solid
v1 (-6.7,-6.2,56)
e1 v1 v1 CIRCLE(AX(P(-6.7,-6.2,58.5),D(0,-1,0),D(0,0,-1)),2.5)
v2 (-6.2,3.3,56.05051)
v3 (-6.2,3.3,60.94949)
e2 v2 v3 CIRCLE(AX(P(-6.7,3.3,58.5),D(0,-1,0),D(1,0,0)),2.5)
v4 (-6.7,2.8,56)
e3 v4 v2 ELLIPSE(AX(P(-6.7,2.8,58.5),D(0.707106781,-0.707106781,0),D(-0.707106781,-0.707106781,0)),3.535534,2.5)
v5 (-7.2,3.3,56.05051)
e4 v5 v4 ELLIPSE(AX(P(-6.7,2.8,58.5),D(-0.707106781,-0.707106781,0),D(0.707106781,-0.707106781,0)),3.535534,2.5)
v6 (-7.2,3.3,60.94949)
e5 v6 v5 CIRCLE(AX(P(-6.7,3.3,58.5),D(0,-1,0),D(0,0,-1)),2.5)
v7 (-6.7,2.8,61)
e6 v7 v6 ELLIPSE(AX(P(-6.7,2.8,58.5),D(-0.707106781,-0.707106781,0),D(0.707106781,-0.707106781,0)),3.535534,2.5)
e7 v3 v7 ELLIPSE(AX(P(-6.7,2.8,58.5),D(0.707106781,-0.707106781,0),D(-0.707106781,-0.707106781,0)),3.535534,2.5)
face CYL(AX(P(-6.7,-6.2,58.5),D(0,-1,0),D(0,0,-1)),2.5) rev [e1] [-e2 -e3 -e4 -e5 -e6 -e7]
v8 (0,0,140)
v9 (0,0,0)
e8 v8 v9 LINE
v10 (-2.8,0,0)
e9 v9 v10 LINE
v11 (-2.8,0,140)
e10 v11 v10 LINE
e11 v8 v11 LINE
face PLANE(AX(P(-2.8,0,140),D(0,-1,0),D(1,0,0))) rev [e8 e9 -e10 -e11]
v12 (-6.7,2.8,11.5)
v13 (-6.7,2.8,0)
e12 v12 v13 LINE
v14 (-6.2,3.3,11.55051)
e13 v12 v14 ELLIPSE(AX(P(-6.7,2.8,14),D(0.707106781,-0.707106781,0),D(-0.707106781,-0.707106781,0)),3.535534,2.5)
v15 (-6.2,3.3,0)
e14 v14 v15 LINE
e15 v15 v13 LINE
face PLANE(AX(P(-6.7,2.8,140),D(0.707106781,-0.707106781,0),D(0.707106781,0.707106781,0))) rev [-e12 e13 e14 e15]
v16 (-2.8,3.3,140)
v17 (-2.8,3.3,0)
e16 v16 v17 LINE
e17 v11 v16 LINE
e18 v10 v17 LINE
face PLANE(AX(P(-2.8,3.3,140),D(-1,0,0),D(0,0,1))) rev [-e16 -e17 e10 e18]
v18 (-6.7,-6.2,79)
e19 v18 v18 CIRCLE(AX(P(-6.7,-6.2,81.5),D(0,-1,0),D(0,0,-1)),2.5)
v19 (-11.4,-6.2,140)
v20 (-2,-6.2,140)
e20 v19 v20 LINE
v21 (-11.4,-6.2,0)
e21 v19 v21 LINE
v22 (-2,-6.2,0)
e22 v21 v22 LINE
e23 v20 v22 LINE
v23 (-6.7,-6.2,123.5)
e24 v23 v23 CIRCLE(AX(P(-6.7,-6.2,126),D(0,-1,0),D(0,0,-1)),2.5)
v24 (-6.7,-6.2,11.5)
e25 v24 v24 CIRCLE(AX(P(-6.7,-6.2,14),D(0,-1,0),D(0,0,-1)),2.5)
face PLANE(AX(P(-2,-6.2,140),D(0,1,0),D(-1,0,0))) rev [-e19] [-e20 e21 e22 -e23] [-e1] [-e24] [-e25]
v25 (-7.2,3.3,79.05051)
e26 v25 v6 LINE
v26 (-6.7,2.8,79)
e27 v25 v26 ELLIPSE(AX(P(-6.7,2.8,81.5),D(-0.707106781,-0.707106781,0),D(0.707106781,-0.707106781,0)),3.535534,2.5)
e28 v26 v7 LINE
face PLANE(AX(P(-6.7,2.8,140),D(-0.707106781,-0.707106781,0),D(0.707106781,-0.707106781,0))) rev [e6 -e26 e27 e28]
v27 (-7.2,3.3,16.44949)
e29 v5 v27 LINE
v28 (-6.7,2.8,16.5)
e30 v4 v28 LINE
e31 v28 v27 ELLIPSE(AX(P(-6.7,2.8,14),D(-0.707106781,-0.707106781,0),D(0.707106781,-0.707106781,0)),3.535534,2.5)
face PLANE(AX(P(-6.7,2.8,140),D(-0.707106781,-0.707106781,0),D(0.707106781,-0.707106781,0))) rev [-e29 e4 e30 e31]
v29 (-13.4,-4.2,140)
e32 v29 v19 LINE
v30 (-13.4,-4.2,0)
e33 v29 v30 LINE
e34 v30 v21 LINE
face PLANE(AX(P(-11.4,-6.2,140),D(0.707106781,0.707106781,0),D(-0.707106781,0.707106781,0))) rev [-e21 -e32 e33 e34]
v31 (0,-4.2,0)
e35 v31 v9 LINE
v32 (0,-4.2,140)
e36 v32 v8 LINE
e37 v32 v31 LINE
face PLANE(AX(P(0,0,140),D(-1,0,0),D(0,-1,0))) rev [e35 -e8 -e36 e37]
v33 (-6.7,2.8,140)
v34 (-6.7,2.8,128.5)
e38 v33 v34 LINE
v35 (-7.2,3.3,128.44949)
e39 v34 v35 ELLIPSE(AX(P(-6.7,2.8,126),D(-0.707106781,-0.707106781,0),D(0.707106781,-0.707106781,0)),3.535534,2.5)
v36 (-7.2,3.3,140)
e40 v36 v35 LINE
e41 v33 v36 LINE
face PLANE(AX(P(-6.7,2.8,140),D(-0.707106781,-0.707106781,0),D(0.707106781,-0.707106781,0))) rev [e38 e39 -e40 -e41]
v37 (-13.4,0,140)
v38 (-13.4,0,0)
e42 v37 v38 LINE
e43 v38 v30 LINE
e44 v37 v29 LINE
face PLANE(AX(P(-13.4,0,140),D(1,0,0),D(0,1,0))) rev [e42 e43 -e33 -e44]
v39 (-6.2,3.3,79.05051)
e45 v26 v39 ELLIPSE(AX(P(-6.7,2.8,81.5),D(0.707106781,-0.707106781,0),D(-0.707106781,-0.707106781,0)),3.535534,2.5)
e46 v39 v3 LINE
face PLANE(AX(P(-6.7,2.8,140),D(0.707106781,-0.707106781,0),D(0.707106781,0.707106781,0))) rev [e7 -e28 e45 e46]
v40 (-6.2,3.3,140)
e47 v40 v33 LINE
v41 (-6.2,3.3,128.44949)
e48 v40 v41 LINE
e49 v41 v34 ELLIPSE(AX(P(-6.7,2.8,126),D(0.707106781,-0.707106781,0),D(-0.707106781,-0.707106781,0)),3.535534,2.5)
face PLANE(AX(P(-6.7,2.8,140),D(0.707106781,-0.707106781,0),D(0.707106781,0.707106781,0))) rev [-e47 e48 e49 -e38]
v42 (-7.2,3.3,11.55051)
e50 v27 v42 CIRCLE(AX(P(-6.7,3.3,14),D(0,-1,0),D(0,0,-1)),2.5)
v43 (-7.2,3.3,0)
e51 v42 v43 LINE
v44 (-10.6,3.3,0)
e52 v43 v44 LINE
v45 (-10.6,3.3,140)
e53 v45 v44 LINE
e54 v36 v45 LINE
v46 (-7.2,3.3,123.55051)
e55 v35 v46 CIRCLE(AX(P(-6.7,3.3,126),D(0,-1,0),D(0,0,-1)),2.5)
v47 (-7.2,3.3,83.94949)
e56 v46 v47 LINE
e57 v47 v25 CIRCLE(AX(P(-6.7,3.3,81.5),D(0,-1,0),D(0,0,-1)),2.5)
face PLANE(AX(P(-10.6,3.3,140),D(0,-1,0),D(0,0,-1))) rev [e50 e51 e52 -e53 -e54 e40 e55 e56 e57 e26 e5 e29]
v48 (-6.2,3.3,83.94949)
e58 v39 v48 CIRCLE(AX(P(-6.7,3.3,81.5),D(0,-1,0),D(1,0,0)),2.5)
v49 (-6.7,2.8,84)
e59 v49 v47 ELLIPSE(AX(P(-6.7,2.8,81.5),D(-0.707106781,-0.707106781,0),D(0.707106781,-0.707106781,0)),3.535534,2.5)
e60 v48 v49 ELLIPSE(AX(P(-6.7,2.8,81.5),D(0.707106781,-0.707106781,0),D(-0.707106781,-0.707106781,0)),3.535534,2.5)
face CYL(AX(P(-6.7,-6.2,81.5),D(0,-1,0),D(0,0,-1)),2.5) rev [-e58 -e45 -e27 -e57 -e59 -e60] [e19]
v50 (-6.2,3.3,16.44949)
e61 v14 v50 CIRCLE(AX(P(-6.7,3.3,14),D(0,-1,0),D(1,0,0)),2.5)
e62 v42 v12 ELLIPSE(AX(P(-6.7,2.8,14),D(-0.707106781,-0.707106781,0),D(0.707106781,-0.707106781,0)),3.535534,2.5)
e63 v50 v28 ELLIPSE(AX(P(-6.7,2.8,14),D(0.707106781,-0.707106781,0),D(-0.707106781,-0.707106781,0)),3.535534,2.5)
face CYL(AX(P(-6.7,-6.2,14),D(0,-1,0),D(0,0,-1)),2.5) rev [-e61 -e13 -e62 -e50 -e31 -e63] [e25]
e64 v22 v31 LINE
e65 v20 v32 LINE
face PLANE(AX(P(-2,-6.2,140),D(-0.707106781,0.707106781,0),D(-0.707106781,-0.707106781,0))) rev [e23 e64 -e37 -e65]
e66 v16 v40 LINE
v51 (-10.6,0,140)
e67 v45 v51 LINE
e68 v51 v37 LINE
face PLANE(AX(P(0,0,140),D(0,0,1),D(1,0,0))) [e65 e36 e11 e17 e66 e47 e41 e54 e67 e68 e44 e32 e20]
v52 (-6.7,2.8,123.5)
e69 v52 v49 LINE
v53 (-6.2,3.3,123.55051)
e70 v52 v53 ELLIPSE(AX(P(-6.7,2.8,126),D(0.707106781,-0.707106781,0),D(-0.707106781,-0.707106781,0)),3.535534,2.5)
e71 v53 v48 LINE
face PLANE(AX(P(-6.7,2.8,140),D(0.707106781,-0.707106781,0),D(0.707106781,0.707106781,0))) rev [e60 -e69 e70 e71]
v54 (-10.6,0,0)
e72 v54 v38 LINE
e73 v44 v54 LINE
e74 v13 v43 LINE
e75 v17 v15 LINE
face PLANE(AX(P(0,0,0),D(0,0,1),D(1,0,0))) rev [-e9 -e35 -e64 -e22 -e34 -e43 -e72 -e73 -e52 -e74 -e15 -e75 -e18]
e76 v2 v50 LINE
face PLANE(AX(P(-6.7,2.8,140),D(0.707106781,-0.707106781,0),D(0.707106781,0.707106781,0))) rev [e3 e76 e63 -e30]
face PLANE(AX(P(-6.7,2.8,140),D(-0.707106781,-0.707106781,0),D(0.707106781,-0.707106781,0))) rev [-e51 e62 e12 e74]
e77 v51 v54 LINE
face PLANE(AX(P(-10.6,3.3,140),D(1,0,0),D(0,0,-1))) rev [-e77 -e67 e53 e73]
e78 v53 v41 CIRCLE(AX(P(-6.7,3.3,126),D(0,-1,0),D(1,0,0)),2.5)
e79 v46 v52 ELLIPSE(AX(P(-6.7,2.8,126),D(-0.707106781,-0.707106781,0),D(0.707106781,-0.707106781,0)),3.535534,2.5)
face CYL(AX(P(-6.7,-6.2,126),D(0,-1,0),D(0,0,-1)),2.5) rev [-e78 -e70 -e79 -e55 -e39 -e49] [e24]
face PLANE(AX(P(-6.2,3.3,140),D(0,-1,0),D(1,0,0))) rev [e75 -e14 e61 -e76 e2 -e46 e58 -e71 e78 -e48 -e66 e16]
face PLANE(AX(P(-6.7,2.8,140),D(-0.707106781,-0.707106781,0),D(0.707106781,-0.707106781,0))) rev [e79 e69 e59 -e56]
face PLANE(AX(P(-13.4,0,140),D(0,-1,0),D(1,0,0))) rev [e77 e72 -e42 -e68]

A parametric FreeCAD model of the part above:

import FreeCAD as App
import Part
import Sketcher
from FreeCAD import Vector
Q = App.Units.Quantity

doc = App.newDocument("Part")
body = doc.addObject("PartDesign::Body", "Body")

# Sketch on XY plane
sketch1 = body.newObject("Sketcher::SketchObject", "Sketch")
sketch1.AttachmentSupport = (doc.getObject("XY_Plane"), [""])
sketch1.MapMode = "FlatFace"
sketch1.addGeometry(Part.LineSegment(Vector(-11.4, -6.2, 0), Vector(-2, -6.2, 0)), False)
sketch1.addGeometry(Part.LineSegment(Vector(-2, -6.2, 0), Vector(0, -4.2, 0)), False)
sketch1.addGeometry(Part.LineSegment(Vector(0, -4.2, 0), Vector(0, 0, 0)), False)
sketch1.addGeometry(Part.LineSegment(Vector(0, 0, 0), Vector(-2.8, 0, 0)), False)
sketch1.addGeometry(Part.LineSegment(Vector(-2.8, 0, 0), Vector(-2.8, 3.3, 0)), False)
sketch1.addGeometry(Part.LineSegment(Vector(-2.8, 3.3, 0), Vector(-6.2, 3.3, 0)), False)
sketch1.addGeometry(Part.LineSegment(Vector(-6.2, 3.3, 0), Vector(-6.7, 2.8, 0)), False)
sketch1.addGeometry(Part.LineSegment(Vector(-6.7, 2.8, 0), Vector(-7.2, 3.3, 0)), False)
sketch1.addGeometry(Part.LineSegment(Vector(-7.2, 3.3, 0), Vector(-10.6, 3.3, 0)), False)
sketch1.addGeometry(Part.LineSegment(Vector(-10.6, 3.3, 0), Vector(-10.6, 0, 0)), False)
sketch1.addGeometry(Part.LineSegment(Vector(-10.6, 0, 0), Vector(-13.4, 0, 0)), False)
sketch1.addGeometry(Part.LineSegment(Vector(-13.4, 0, 0), Vector(-13.4, -4.2, 0)), False)
sketch1.addGeometry(Part.LineSegment(Vector(-13.4, -4.2, 0), Vector(-11.4, -6.2, 0)), False)
sketch1.addConstraint(Sketcher.Constraint("Coincident", 0, 2, 1, 1))
sketch1.addConstraint(Sketcher.Constraint("Coincident", 1, 2, 2, 1))
sketch1.addConstraint(Sketcher.Constraint("Coincident", 2, 2, 3, 1))
sketch1.addConstraint(Sketcher.Constraint("Coincident", 3, 2, 4, 1))
sketch1.addConstraint(Sketcher.Constraint("Coincident", 4, 2, 5, 1))
sketch1.addConstraint(Sketcher.Constraint("Coincident", 5, 2, 6, 1))
sketch1.addConstraint(Sketcher.Constraint("Coincident", 6, 2, 7, 1))
sketch1.addConstraint(Sketcher.Constraint("Coincident", 7, 2, 8, 1))
sketch1.addConstraint(Sketcher.Constraint("Coincident", 8, 2, 9, 1))
sketch1.addConstraint(Sketcher.Constraint("Coincident", 9, 2, 10, 1))
sketch1.addConstraint(Sketcher.Constraint("Coincident", 10, 2, 11, 1))
sketch1.addConstraint(Sketcher.Constraint("Coincident", 11, 2, 12, 1))
sketch1.addConstraint(Sketcher.Constraint("Coincident", 12, 2, 0, 1))
sketch1.addConstraint(Sketcher.Constraint("Horizontal", 0))
sketch1.addConstraint(Sketcher.Constraint("Vertical", 2))
sketch1.addConstraint(Sketcher.Constraint("Horizontal", 3))
sketch1.addConstraint(Sketcher.Constraint("Vertical", 4))
sketch1.addConstraint(Sketcher.Constraint("Horizontal", 5))
sketch1.addConstraint(Sketcher.Constraint("Horizontal", 8))
sketch1.addConstraint(Sketcher.Constraint("Vertical", 9))
sketch1.addConstraint(Sketcher.Constraint("Horizontal", 10))
sketch1.addConstraint(Sketcher.Constraint("Vertical", 11))
sketch1.addConstraint(Sketcher.Constraint("Coincident", 2, 2, -1, 1))
sketch1.addConstraint(Sketcher.Constraint("PointOnObject", 9, 2, -1))
sketch1.addConstraint(Sketcher.Constraint("Parallel", 1, 6))
sketch1.addConstraint(Sketcher.Constraint("Perpendicular", 6, 7))
sketch1.addConstraint(Sketcher.Constraint("Parallel", 7, 12))
sketch1.addConstraint(Sketcher.Constraint("Horizontal", 5, 2, 7, 2))
sketch1.addConstraint(Sketcher.Constraint("Horizontal", 1, 2, 11, 2))
sketch1.addConstraint(Sketcher.Constraint("Equal", 5, 8))
sketch1.addConstraint(Sketcher.Constraint("Equal", 3, 10))
sketch1.addConstraint(Sketcher.Constraint("Equal", 6, 7))
sketch1.addConstraint(Sketcher.Constraint("DistanceX", 0, 1, 0, 2, Q("9.4 mm")))
sketch1.addConstraint(Sketcher.Constraint("DistanceX", 3, 2, 3, 1, Q("2.8 mm")))
sketch1.addConstraint(Sketcher.Constraint("DistanceX", 5, 2, 5, 1, Q("3.4 mm")))
sketch1.addConstraint(Sketcher.Constraint("DistanceY", 2, 1, 2, 2, Q("4.2 mm")))
sketch1.addConstraint(Sketcher.Constraint("DistanceY", 4, 1, 4, 2, Q("3.3 mm")))
sketch1.addConstraint(Sketcher.Constraint("DistanceX", 0, 2, -1, 1, Q("2 mm")))
pad1 = body.newObject("PartDesign::Pad", "Pad")
pad1.Profile = sketch1
pad1.Length = 140

# Sketch on XZ plane
sketch2 = body.newObject("Sketcher::SketchObject", "Sketch001")
sketch2.AttachmentSupport = (doc.getObject("XZ_Plane"), [""])
sketch2.MapMode = "FlatFace"
sketch2.AttachmentOffset = App.Placement(Vector(0, 0, 6.2), App.Rotation())
sketch2.addGeometry(Part.Circle(Vector(-6.7, 14, 0), Vector(0, 0, 1), 2.5), False)
sketch2.addGeometry(Part.Circle(Vector(-6.7, 58.5, 0), Vector(0, 0, 1), 2.5), False)
sketch2.addGeometry(Part.Circle(Vector(-6.7, 81.5, 0), Vector(0, 0, 1), 2.5), False)
sketch2.addGeometry(Part.Circle(Vector(-6.7, 126, 0), Vector(0, 0, 1), 2.5), False)
sketch2.addConstraint(Sketcher.Constraint("Equal", 0, 1))
sketch2.addConstraint(Sketcher.Constraint("Equal", 1, 2))
sketch2.addConstraint(Sketcher.Constraint("Equal", 2, 3))
sketch2.addConstraint(Sketcher.Constraint("Vertical", 0, 3, 1, 3))
sketch2.addConstraint(Sketcher.Constraint("Vertical", 1, 3, 2, 3))
sketch2.addConstraint(Sketcher.Constraint("Vertical", 2, 3, 3, 3))
sketch2.addConstraint(Sketcher.Constraint("Diameter", 0, Q("5 mm")))
sketch2.addConstraint(Sketcher.Constraint("DistanceY", -1, 1, 0, 3, Q("14 mm")))
sketch2.addConstraint(Sketcher.Constraint("DistanceY", -1, 1, 3, 3, Q("126 mm")))
sketch2.addConstraint(Sketcher.Constraint("DistanceY", 1, 3, 2, 3, Q("23 mm")))
sketch2.addConstraint(Sketcher.Constraint("DistanceX", 0, 3, -1, 1, Q("6.7 mm")))
sketch2.addConstraint(Sketcher.Constraint("DistanceY", -1, 1, 1, 3, Q("58.5 mm")))
doc.recompute()
hole = body.newObject("PartDesign::Hole", "Hole")
hole.Profile = sketch2
hole.ThreadType = "None"
hole.Diameter = 5
hole.DepthType = "Dimension"
hole.Depth = 28
hole.DrillPoint = "Angled"
hole.DrillPointAngle = 118

doc.recompute()
